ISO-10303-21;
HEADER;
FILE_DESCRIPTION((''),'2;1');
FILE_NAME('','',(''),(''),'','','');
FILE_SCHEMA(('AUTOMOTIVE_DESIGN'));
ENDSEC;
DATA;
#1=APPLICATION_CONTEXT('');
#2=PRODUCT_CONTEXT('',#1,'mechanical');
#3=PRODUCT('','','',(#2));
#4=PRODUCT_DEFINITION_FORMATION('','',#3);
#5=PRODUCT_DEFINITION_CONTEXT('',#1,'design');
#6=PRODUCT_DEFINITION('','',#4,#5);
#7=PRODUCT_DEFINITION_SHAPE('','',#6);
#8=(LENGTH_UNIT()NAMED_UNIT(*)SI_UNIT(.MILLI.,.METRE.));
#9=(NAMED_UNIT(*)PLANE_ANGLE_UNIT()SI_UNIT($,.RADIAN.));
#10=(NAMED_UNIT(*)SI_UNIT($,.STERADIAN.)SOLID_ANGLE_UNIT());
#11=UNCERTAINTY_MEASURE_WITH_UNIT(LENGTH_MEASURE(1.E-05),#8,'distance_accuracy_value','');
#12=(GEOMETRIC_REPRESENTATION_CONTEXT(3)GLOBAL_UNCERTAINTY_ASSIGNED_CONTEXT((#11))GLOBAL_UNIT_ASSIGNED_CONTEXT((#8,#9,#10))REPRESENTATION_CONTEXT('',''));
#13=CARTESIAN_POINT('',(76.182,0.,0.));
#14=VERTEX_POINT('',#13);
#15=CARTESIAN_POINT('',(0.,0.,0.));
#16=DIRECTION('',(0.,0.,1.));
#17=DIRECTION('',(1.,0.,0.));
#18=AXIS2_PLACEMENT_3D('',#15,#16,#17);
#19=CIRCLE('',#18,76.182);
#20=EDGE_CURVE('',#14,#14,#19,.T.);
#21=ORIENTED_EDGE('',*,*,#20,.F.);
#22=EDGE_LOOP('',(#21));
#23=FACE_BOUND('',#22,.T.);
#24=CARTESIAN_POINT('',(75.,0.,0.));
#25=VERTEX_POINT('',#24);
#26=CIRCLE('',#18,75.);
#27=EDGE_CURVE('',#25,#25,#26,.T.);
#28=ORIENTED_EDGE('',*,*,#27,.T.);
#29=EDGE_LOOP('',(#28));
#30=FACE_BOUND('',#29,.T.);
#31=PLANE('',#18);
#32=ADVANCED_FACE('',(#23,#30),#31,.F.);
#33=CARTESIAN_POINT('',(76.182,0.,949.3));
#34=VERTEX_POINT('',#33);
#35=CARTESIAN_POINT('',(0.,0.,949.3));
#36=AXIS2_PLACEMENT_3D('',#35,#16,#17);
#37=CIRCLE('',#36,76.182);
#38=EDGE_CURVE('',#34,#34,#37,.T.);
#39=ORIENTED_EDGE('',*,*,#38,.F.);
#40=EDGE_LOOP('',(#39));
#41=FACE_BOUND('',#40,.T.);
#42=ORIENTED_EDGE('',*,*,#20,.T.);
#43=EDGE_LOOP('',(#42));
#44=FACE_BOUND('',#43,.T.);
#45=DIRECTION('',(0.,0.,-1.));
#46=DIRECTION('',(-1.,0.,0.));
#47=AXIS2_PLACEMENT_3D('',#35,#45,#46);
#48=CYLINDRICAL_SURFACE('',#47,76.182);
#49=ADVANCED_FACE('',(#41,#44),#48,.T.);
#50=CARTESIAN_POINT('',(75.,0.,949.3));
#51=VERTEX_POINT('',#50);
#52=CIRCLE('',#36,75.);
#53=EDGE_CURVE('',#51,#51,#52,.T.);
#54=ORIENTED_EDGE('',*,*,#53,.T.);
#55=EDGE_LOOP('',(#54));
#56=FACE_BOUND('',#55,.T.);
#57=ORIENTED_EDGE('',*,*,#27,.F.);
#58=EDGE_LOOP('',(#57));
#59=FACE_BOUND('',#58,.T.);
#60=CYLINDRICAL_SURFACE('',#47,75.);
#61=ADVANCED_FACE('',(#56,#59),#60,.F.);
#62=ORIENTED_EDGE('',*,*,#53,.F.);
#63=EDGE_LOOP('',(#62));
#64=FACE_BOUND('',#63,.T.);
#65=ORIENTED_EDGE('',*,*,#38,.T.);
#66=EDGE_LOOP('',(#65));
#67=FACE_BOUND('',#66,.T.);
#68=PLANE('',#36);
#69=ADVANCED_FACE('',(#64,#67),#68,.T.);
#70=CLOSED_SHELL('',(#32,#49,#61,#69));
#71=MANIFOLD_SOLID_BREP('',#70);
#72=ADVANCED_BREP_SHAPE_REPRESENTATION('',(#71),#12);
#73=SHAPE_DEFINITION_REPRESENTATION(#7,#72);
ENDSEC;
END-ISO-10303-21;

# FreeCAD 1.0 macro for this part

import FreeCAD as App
import Part
import Sketcher

V = App.Vector
Q = App.Units.Quantity

doc = App.newDocument("Part")
body = doc.addObject("PartDesign::Body", "Body")

# Sketch on XY plane
sketch1 = body.newObject("Sketcher::SketchObject", "Sketch")
sketch1.AttachmentSupport = (doc.getObject("XY_Plane"), [""])
sketch1.MapMode = "FlatFace"
sketch1.addGeometry([
    Part.Circle(V(0, 0, 0), V(0, 0, 1), 76),
    Part.Circle(V(0, 0, 0), V(0, 0, 1), 75),
], False)
sketch1.addConstraint([
    Sketcher.Constraint("Coincident", 0, 3, -1, 1),
    Sketcher.Constraint("Coincident", 1, 3, -1, 1),
    Sketcher.Constraint("Diameter", 1, Q("150 mm")),
    Sketcher.Constraint("Diameter", 0, Q("152.364 mm")),
])
pad1 = body.newObject("PartDesign::Pad", "Pad")
pad1.Profile = sketch1
pad1.Length = 949.3

doc.recompute()
